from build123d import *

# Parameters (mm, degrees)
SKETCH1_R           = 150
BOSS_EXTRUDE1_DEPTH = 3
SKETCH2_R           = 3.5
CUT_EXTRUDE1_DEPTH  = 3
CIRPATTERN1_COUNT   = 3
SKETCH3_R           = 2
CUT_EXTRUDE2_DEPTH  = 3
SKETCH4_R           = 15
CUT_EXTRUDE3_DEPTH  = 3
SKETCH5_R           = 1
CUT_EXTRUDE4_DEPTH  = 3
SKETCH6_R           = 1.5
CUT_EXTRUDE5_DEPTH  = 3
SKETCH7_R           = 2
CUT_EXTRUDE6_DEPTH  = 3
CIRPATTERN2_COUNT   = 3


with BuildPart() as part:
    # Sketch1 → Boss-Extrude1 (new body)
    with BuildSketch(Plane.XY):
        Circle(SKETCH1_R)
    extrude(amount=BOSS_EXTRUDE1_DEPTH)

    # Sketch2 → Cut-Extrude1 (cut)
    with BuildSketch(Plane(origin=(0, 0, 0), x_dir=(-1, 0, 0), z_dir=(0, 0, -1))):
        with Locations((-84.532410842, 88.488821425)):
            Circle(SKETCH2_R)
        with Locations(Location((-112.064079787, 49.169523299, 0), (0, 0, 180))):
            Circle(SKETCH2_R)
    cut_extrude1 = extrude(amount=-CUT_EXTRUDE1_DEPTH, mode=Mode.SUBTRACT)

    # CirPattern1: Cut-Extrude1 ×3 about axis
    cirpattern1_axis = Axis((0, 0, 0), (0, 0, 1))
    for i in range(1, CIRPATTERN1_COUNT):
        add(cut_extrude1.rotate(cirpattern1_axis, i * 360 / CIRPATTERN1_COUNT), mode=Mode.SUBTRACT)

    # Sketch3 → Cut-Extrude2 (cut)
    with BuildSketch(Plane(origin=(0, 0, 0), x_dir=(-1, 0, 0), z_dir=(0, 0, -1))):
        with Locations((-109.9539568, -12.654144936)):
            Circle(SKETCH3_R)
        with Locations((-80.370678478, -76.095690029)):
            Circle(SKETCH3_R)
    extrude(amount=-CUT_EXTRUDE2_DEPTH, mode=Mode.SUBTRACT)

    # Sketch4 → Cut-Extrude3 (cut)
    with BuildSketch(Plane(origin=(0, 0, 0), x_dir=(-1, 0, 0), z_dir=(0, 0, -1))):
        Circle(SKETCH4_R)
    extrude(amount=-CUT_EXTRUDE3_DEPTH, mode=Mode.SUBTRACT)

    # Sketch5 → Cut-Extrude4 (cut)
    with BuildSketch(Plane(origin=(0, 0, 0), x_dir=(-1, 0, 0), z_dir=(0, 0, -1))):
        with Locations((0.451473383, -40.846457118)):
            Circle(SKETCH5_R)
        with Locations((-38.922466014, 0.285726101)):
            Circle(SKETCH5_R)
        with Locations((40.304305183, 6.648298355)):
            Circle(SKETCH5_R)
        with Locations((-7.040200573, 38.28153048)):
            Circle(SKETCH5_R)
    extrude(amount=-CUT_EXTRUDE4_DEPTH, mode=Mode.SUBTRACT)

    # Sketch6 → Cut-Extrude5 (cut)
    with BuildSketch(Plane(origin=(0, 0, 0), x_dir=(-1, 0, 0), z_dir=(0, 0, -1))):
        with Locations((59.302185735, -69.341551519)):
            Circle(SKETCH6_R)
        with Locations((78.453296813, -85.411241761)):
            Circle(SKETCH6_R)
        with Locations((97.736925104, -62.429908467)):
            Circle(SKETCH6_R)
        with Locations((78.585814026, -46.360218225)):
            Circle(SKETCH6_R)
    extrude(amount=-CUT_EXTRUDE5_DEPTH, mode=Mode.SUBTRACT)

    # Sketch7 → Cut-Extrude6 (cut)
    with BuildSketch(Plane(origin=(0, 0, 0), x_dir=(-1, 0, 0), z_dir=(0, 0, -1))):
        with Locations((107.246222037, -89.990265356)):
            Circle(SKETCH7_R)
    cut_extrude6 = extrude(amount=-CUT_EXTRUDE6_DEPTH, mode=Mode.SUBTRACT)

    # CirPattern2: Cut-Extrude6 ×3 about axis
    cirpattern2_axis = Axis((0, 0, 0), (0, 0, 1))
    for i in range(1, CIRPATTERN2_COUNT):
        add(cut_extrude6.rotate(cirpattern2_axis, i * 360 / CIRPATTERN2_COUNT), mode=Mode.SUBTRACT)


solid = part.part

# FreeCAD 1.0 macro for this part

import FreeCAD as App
import Part
import Sketcher

V = App.Vector

doc = App.newDocument("Part")
params = doc.addObject("Spreadsheet::Sheet", "Params")
for row, (alias, value) in enumerate([
    ("sketch1_diameter", "300 mm"),
    ("pad1_length", "3 mm"),
    ("sketch2_diameter", "7 mm"),
    ("pocket1_length", "3 mm"),
    ("sketch3_diameter", "4 mm"),
    ("pocket2_length", "3 mm"),
    ("sketch4_diameter", "30 mm"),
    ("pocket3_length", "3 mm"),
    ("sketch5_diameter", "2 mm"),
    ("pocket4_length", "3 mm"),
    ("sketch6_diameter", "3 mm"),
    ("pocket5_length", "3 mm"),
    ("sketch7_diameter", "4 mm"),
    ("pocket6_length", "3 mm"),
], start=1):
    params.set(f"A{row}", alias)
    params.set(f"B{row}", "=" + value)
    params.setAlias(f"B{row}", alias)

body = doc.addObject("PartDesign::Body", "Body")

# Sketch on XY plane
sketch1 = body.newObject("Sketcher::SketchObject", "Sketch")
sketch1.AttachmentSupport = (doc.getObject("XY_Plane"), [""])
sketch1.MapMode = "FlatFace"
sketch1.addGeometry(Part.Circle(V(0, 0, 0), V(0, 0, 1), 150), False)
sketch1.addConstraint([
    Sketcher.Constraint("Coincident", 0, 3, -1, 1),
    Sketcher.Constraint("Diameter", 0, 300.0),
])
sketch1.setExpression("Constraints[1]", "Params.sketch1_diameter")
pad1 = body.newObject("PartDesign::Pad", "Pad")
pad1.Profile = sketch1
pad1.setExpression("Length", "Params.pad1_length")

# Sketch on XY plane
sketch2 = body.newObject("Sketcher::SketchObject", "Sketch001")
sketch2.AttachmentSupport = (doc.getObject("XY_Plane"), [""])
sketch2.MapMode = "FlatFace"
sketch2.addGeometry([
    Part.Circle(V(84.5, 88.5, 0), V(0, 0, 1), 3.5),
    Part.Circle(V(112.1, 49.2, 0), V(0, 0, 1), 3.5),
], False)
sketch2.addConstraint([
    Sketcher.Constraint("Equal", 0, 1),
    Sketcher.Constraint("Diameter", 0, 7.0),
    Sketcher.Constraint("DistanceY", 1, 3, 0, 3, 39.319298),
    Sketcher.Constraint("DistanceX", -1, 1, 0, 3, 84.532411),
    Sketcher.Constraint("DistanceY", -1, 1, 0, 3, 88.488821),
    Sketcher.Constraint("DistanceX", -1, 1, 1, 3, 112.06408),
])
sketch2.setExpression("Constraints[1]", "Params.sketch2_diameter")
pocket1 = body.newObject("PartDesign::Pocket", "Pocket")
pocket1.Profile = sketch2
pocket1.setExpression("Length", "Params.pocket1_length")
pocket1.Reversed = True
doc.recompute()

polarpattern = body.newObject("PartDesign::PolarPattern", "PolarPattern")
polarpattern.Originals = [pocket1]
polarpattern.Axis = (doc.getObject("Z_Axis"), [""])
polarpattern.Angle = 360
polarpattern.Occurrences = 3
body.Tip = polarpattern

# Sketch on XY plane
sketch3 = body.newObject("Sketcher::SketchObject", "Sketch002")
sketch3.AttachmentSupport = (doc.getObject("XY_Plane"), [""])
sketch3.MapMode = "FlatFace"
sketch3.addGeometry([
    Part.Circle(V(110, -12.7, 0), V(0, 0, 1), 2),
    Part.Circle(V(80.4, -76.1, 0), V(0, 0, 1), 2),
], False)
sketch3.addConstraint([
    Sketcher.Constraint("Equal", 0, 1),
    Sketcher.Constraint("Diameter", 0, 4.0),
    Sketcher.Constraint("DistanceX", -1, 1, 1, 3, 80.370678),
    Sketcher.Constraint("DistanceY", 1, 3, -1, 1, 76.09569),
    Sketcher.Constraint("DistanceX", 1, 3, 0, 3, 29.583278),
    Sketcher.Constraint("DistanceY", 0, 3, -1, 1, 12.654145),
])
sketch3.setExpression("Constraints[1]", "Params.sketch3_diameter")
pocket2 = body.newObject("PartDesign::Pocket", "Pocket001")
pocket2.Profile = sketch3
pocket2.setExpression("Length", "Params.pocket2_length")
pocket2.Reversed = True

# Sketch on XY plane
sketch4 = body.newObject("Sketcher::SketchObject", "Sketch003")
sketch4.AttachmentSupport = (doc.getObject("XY_Plane"), [""])
sketch4.MapMode = "FlatFace"
sketch4.addGeometry(Part.Circle(V(0, 0, 0), V(0, 0, 1), 15), False)
sketch4.addConstraint([
    Sketcher.Constraint("Coincident", 0, 3, -1, 1),
    Sketcher.Constraint("Diameter", 0, 30.0),
])
sketch4.setExpression("Constraints[1]", "Params.sketch4_diameter")
pocket3 = body.newObject("PartDesign::Pocket", "Pocket002")
pocket3.Profile = sketch4
pocket3.setExpression("Length", "Params.pocket3_length")
pocket3.Reversed = True

# Sketch on XY plane
sketch5 = body.newObject("Sketcher::SketchObject", "Sketch004")
sketch5.AttachmentSupport = (doc.getObject("XY_Plane"), [""])
sketch5.MapMode = "FlatFace"
sketch5.addGeometry([
    Part.Circle(V(-0.5, -40.8, 0), V(0, 0, 1), 1),
    Part.Circle(V(38.9, 0.3, 0), V(0, 0, 1), 1),
    Part.Circle(V(-40.3, 6.6, 0), V(0, 0, 1), 1),
    Part.Circle(V(7, 38.3, 0), V(0, 0, 1), 1),
], False)
sketch5.addConstraint([
    Sketcher.Constraint("Equal", 0, 1),
    Sketcher.Constraint("Equal", 1, 2),
    Sketcher.Constraint("Equal", 2, 3),
    Sketcher.Constraint("Diameter", 0, 2.0),
    Sketcher.Constraint("DistanceY", -1, 1, 2, 3, 6.648298),
    Sketcher.Constraint("DistanceX", -1, 1, 3, 3, 7.040201),
    Sketcher.Constraint("DistanceY", -1, 1, 3, 3, 38.28153),
    Sketcher.Constraint("DistanceX", 0, 3, 1, 3, 39.373939),
    Sketcher.Constraint("DistanceX", 2, 3, 0, 3, 39.852832),
    Sketcher.Constraint("DistanceX", 0, 3, -1, 1, 0.451473),
    Sketcher.Constraint("DistanceY", 0, 3, -1, 1, 40.846457),
    Sketcher.Constraint("DistanceY", -1, 1, 1, 3, 0.285726),
])
sketch5.setExpression("Constraints[3]", "Params.sketch5_diameter")
pocket4 = body.newObject("PartDesign::Pocket", "Pocket003")
pocket4.Profile = sketch5
pocket4.setExpression("Length", "Params.pocket4_length")
pocket4.Reversed = True

# Sketch on XY plane
sketch6 = body.newObject("Sketcher::SketchObject", "Sketch005")
sketch6.AttachmentSupport = (doc.getObject("XY_Plane"), [""])
sketch6.MapMode = "FlatFace"
sketch6.addGeometry([
    Part.Circle(V(-59.3, -69.3, 0), V(0, 0, 1), 1.5),
    Part.Circle(V(-78.5, -85.4, 0), V(0, 0, 1), 1.5),
    Part.Circle(V(-97.7, -62.4, 0), V(0, 0, 1), 1.5),
    Part.Circle(V(-78.6, -46.4, 0), V(0, 0, 1), 1.5),
], False)
sketch6.addConstraint([
    Sketcher.Constraint("Equal", 0, 1),
    Sketcher.Constraint("Equal", 1, 2),
    Sketcher.Constraint("Equal", 2, 3),
    Sketcher.Constraint("Diameter", 0, 3.0),
    Sketcher.Constraint("DistanceY", 0, 3, -1, 1, 69.341552),
    Sketcher.Constraint("DistanceY", 1, 3, -1, 1, 85.411242),
    Sketcher.Constraint("DistanceY", 2, 3, -1, 1, 62.429908),
    Sketcher.Constraint("DistanceY", 3, 3, -1, 1, 46.360218),
    Sketcher.Constraint("DistanceX", 1, 3, 0, 3, 19.151111),
    Sketcher.Constraint("DistanceX", 2, 3, 1, 3, 19.283628),
    Sketcher.Constraint("DistanceX", 2, 3, 3, 3, 19.151111),
    Sketcher.Constraint("DistanceX", 0, 3, -1, 1, 59.302186),
])
sketch6.setExpression("Constraints[3]", "Params.sketch6_diameter")
pocket5 = body.newObject("PartDesign::Pocket", "Pocket004")
pocket5.Profile = sketch6
pocket5.setExpression("Length", "Params.pocket5_length")
pocket5.Reversed = True

# Sketch on XY plane
sketch7 = body.newObject("Sketcher::SketchObject", "Sketch006")
sketch7.AttachmentSupport = (doc.getObject("XY_Plane"), [""])
sketch7.MapMode = "FlatFace"
sketch7.addGeometry(Part.Circle(V(-107.2, -90, 0), V(0, 0, 1), 2), False)
sketch7.addConstraint([
    Sketcher.Constraint("Diameter", 0, 4.0),
    Sketcher.Constraint("DistanceX", 0, 3, -1, 1, 107.246222),
    Sketcher.Constraint("DistanceY", 0, 3, -1, 1, 89.990265),
])
sketch7.setExpression("Constraints[0]", "Params.sketch7_diameter")
pocket6 = body.newObject("PartDesign::Pocket", "Pocket005")
pocket6.Profile = sketch7
pocket6.setExpression("Length", "Params.pocket6_length")
pocket6.Reversed = True
doc.recompute()

polarpattern2 = body.newObject("PartDesign::PolarPattern", "PolarPattern001")
polarpattern2.Originals = [pocket6]
polarpattern2.Axis = (doc.getObject("Z_Axis"), [""])
polarpattern2.Angle = 360
polarpattern2.Occurrences = 3
body.Tip = polarpattern2

doc.recompute()
